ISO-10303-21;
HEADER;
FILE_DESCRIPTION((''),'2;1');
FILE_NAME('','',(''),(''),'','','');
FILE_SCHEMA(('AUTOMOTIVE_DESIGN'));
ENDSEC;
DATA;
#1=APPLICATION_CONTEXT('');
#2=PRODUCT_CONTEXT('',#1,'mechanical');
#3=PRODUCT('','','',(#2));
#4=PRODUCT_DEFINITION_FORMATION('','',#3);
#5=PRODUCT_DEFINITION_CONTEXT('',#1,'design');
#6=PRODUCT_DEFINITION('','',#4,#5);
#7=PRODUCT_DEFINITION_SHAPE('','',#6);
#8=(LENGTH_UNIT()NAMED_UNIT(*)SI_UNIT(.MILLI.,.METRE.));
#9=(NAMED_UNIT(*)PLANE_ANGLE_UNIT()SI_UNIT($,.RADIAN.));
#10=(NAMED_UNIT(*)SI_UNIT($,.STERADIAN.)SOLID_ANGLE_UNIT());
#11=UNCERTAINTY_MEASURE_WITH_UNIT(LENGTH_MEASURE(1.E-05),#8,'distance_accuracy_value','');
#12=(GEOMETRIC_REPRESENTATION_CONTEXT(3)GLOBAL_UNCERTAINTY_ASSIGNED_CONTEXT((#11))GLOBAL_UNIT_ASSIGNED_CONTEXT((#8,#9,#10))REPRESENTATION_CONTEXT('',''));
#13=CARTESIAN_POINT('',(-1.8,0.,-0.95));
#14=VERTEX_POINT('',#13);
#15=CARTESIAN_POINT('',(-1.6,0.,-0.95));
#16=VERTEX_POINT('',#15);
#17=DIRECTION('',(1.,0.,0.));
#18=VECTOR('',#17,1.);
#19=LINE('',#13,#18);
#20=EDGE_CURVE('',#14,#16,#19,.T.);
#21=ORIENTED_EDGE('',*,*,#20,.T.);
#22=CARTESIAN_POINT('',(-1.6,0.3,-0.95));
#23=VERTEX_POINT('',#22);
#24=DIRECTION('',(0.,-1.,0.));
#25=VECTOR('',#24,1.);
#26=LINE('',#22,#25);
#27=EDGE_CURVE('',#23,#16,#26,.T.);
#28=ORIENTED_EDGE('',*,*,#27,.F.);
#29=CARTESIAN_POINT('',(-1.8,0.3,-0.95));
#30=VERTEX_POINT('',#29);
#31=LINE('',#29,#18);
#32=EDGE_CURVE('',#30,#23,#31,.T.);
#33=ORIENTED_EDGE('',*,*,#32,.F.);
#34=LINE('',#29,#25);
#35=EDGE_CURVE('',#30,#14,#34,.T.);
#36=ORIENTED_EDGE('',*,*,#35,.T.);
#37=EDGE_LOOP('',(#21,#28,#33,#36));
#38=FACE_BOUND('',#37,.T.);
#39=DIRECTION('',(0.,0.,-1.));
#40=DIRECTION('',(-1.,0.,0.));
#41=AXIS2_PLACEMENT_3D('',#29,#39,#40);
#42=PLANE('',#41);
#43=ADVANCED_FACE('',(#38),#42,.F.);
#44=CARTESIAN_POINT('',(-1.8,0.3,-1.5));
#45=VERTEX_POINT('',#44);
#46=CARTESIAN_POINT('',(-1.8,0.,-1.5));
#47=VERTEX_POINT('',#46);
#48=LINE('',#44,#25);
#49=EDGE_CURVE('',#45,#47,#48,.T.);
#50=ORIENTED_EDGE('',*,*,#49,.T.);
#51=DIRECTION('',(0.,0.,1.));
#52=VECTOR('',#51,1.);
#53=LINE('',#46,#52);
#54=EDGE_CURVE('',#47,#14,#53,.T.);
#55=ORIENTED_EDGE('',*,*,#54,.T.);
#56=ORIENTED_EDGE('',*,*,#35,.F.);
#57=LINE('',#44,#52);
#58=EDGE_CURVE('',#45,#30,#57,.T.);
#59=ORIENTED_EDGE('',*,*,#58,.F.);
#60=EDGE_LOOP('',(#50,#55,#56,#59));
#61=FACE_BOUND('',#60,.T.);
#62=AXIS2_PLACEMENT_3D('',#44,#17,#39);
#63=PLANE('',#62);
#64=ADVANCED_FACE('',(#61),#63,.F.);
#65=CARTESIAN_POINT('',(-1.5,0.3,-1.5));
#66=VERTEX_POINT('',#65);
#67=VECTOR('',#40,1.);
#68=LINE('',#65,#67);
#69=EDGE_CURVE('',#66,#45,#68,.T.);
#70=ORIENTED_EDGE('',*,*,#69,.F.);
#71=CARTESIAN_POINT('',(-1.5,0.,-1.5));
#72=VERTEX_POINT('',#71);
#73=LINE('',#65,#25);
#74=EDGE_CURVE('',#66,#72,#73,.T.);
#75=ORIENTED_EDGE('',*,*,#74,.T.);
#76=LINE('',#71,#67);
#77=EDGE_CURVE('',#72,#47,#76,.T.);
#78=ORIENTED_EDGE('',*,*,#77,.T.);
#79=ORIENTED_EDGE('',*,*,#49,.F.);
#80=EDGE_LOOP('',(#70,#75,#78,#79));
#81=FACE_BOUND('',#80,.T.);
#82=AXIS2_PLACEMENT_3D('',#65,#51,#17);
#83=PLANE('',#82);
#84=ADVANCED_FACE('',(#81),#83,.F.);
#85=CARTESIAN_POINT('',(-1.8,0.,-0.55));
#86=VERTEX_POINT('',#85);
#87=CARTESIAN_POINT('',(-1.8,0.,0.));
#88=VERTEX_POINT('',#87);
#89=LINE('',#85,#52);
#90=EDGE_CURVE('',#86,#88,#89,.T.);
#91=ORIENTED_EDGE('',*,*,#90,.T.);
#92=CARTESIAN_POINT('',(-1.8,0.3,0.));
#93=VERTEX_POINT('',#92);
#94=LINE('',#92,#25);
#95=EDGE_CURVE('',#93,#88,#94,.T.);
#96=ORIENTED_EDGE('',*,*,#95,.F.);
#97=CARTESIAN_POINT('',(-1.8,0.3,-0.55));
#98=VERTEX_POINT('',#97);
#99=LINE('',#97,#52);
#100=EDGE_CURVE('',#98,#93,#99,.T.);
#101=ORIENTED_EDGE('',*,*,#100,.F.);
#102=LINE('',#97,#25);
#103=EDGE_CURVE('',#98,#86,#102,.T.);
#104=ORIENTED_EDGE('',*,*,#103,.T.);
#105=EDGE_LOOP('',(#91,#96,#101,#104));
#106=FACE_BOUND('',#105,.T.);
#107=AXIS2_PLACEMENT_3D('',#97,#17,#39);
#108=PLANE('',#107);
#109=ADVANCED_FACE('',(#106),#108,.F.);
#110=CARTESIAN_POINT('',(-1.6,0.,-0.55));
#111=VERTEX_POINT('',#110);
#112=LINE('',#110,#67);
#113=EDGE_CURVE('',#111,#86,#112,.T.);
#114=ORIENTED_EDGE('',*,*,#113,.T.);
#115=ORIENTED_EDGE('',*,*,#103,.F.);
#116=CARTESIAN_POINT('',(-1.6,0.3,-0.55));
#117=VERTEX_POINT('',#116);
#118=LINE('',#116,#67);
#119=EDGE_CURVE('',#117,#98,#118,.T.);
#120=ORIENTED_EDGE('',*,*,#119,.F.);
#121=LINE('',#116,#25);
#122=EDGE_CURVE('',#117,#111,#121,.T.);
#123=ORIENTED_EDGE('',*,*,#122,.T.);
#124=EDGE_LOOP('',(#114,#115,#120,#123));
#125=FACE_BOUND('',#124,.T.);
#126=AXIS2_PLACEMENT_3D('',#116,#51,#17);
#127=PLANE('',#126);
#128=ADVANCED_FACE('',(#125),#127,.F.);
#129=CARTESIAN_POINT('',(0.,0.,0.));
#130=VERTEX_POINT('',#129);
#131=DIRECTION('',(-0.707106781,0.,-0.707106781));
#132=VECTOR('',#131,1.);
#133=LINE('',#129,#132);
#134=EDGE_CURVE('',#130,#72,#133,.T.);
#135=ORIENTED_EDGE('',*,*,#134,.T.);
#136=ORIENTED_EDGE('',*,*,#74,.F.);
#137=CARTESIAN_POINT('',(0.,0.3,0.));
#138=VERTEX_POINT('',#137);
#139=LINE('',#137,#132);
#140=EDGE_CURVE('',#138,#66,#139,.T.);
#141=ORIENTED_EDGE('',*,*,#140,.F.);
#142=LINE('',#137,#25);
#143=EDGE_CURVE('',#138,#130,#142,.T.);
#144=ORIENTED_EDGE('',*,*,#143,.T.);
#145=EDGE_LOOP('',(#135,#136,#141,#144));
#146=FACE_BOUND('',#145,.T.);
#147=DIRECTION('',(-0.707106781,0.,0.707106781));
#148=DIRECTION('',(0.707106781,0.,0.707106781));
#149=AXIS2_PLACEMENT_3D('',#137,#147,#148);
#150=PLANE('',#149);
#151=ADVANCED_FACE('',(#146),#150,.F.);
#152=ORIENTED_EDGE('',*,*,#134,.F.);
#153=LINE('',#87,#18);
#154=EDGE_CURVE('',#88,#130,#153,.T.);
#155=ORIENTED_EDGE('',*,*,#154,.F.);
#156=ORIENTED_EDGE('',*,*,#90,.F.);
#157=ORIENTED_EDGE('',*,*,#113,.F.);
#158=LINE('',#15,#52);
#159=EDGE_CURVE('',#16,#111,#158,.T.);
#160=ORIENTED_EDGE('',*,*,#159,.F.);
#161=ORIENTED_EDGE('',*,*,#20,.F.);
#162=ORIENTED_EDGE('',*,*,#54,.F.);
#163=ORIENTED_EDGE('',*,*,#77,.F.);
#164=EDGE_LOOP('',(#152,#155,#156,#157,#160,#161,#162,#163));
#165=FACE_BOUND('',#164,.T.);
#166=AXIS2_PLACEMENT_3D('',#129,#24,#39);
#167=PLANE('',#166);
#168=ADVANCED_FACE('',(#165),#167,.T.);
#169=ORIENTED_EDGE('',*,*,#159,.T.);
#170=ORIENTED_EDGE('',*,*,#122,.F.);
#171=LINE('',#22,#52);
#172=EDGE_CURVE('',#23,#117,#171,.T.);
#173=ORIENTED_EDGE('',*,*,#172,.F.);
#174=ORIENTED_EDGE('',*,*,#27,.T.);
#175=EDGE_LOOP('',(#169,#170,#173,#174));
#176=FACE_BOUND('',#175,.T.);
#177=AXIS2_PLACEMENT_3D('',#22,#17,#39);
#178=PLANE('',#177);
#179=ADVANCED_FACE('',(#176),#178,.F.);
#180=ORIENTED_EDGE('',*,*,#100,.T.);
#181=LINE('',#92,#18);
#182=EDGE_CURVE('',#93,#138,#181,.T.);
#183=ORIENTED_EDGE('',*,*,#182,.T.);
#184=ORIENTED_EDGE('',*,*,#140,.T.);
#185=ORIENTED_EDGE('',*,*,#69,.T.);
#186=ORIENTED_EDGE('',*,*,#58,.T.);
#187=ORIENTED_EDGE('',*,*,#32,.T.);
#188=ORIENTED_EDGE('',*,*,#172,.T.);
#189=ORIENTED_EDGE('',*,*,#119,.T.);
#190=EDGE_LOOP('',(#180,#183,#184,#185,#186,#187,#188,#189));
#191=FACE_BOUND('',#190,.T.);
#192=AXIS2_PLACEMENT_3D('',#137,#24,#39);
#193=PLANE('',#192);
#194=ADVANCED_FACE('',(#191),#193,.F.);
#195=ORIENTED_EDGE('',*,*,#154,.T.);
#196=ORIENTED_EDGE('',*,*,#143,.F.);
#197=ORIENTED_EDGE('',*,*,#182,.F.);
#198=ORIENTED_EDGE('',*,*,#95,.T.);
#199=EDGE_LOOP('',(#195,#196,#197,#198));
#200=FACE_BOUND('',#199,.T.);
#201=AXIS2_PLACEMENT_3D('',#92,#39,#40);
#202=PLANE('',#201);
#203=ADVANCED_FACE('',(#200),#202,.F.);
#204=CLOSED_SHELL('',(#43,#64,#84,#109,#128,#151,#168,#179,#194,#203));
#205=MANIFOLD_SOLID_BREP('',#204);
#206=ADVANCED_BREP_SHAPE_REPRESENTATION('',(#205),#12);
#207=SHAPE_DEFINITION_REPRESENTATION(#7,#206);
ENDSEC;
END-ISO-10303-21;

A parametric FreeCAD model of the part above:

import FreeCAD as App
import Part
import Sketcher
from FreeCAD import Vector
Q = App.Units.Quantity

doc = App.newDocument("Part")
body = doc.addObject("PartDesign::Body", "Body")

sketch1 = doc.addObject("Sketcher::SketchObject", "Sketch")
body.addObject(sketch1)
sketch1.AttachmentSupport = (doc.XZ_Plane, [""])
sketch1.MapMode = "FlatFace"
sketch1.addGeometry(Part.LineSegment(Vector(0, 0, 0), Vector(-1.5, -1.5, 0)), False)
sketch1.addGeometry(Part.LineSegment(Vector(-1.5, -1.5, 0), Vector(-1.8, -1.5, 0)), False)
sketch1.addGeometry(Part.LineSegment(Vector(-1.8, -1.5, 0), Vector(-1.8, -0.95, 0)), False)
sketch1.addGeometry(Part.LineSegment(Vector(-1.8, -0.95, 0), Vector(-1.6, -0.95, 0)), False)
sketch1.addGeometry(Part.LineSegment(Vector(-1.6, -0.95, 0), Vector(-1.6, -0.55, 0)), False)
sketch1.addGeometry(Part.LineSegment(Vector(-1.6, -0.55, 0), Vector(-1.8, -0.55, 0)), False)
sketch1.addGeometry(Part.LineSegment(Vector(-1.8, -0.55, 0), Vector(-1.8, 0, 0)), False)
sketch1.addGeometry(Part.LineSegment(Vector(-1.8, 0, 0), Vector(0, 0, 0)), False)
sketch1.addConstraint(Sketcher.Constraint("Coincident", 0, 2, 1, 1))
sketch1.addConstraint(Sketcher.Constraint("Coincident", 1, 2, 2, 1))
sketch1.addConstraint(Sketcher.Constraint("Coincident", 2, 2, 3, 1))
sketch1.addConstraint(Sketcher.Constraint("Coincident", 3, 2, 4, 1))
sketch1.addConstraint(Sketcher.Constraint("Coincident", 4, 2, 5, 1))
sketch1.addConstraint(Sketcher.Constraint("Coincident", 5, 2, 6, 1))
sketch1.addConstraint(Sketcher.Constraint("Coincident", 6, 2, 7, 1))
sketch1.addConstraint(Sketcher.Constraint("Coincident", 7, 2, 0, 1))
sketch1.addConstraint(Sketcher.Constraint("Horizontal", 1))
sketch1.addConstraint(Sketcher.Constraint("Vertical", 2))
sketch1.addConstraint(Sketcher.Constraint("Horizontal", 3))
sketch1.addConstraint(Sketcher.Constraint("Vertical", 4))
sketch1.addConstraint(Sketcher.Constraint("Horizontal", 5))
sketch1.addConstraint(Sketcher.Constraint("Vertical", 6))
sketch1.addConstraint(Sketcher.Constraint("Horizontal", 7))
sketch1.addConstraint(Sketcher.Constraint("Coincident", 7, 2, -1, 1))
sketch1.addConstraint(Sketcher.Constraint("Vertical", 2, 2, 5, 2))
sketch1.addConstraint(Sketcher.Constraint("Equal", 2, 6))
sketch1.addConstraint(Sketcher.Constraint("Angle", 0, Q("-135 deg")))
sketch1.addConstraint(Sketcher.Constraint("DistanceX", 1, 2, 1, 1, 0.3))
sketch1.addConstraint(Sketcher.Constraint("DistanceX", 3, 1, 3, 2, 0.2))
sketch1.addConstraint(Sketcher.Constraint("DistanceX", 7, 1, 7, 2, 1.8))
sketch1.addConstraint(Sketcher.Constraint("DistanceY", 4, 1, 4, 2, 0.4))
pad1 = doc.addObject("PartDesign::Pad", "Pad")
body.addObject(pad1)
pad1.Profile = sketch1
pad1.Length = 0.3
pad1.Reversed = True

doc.recompute()
